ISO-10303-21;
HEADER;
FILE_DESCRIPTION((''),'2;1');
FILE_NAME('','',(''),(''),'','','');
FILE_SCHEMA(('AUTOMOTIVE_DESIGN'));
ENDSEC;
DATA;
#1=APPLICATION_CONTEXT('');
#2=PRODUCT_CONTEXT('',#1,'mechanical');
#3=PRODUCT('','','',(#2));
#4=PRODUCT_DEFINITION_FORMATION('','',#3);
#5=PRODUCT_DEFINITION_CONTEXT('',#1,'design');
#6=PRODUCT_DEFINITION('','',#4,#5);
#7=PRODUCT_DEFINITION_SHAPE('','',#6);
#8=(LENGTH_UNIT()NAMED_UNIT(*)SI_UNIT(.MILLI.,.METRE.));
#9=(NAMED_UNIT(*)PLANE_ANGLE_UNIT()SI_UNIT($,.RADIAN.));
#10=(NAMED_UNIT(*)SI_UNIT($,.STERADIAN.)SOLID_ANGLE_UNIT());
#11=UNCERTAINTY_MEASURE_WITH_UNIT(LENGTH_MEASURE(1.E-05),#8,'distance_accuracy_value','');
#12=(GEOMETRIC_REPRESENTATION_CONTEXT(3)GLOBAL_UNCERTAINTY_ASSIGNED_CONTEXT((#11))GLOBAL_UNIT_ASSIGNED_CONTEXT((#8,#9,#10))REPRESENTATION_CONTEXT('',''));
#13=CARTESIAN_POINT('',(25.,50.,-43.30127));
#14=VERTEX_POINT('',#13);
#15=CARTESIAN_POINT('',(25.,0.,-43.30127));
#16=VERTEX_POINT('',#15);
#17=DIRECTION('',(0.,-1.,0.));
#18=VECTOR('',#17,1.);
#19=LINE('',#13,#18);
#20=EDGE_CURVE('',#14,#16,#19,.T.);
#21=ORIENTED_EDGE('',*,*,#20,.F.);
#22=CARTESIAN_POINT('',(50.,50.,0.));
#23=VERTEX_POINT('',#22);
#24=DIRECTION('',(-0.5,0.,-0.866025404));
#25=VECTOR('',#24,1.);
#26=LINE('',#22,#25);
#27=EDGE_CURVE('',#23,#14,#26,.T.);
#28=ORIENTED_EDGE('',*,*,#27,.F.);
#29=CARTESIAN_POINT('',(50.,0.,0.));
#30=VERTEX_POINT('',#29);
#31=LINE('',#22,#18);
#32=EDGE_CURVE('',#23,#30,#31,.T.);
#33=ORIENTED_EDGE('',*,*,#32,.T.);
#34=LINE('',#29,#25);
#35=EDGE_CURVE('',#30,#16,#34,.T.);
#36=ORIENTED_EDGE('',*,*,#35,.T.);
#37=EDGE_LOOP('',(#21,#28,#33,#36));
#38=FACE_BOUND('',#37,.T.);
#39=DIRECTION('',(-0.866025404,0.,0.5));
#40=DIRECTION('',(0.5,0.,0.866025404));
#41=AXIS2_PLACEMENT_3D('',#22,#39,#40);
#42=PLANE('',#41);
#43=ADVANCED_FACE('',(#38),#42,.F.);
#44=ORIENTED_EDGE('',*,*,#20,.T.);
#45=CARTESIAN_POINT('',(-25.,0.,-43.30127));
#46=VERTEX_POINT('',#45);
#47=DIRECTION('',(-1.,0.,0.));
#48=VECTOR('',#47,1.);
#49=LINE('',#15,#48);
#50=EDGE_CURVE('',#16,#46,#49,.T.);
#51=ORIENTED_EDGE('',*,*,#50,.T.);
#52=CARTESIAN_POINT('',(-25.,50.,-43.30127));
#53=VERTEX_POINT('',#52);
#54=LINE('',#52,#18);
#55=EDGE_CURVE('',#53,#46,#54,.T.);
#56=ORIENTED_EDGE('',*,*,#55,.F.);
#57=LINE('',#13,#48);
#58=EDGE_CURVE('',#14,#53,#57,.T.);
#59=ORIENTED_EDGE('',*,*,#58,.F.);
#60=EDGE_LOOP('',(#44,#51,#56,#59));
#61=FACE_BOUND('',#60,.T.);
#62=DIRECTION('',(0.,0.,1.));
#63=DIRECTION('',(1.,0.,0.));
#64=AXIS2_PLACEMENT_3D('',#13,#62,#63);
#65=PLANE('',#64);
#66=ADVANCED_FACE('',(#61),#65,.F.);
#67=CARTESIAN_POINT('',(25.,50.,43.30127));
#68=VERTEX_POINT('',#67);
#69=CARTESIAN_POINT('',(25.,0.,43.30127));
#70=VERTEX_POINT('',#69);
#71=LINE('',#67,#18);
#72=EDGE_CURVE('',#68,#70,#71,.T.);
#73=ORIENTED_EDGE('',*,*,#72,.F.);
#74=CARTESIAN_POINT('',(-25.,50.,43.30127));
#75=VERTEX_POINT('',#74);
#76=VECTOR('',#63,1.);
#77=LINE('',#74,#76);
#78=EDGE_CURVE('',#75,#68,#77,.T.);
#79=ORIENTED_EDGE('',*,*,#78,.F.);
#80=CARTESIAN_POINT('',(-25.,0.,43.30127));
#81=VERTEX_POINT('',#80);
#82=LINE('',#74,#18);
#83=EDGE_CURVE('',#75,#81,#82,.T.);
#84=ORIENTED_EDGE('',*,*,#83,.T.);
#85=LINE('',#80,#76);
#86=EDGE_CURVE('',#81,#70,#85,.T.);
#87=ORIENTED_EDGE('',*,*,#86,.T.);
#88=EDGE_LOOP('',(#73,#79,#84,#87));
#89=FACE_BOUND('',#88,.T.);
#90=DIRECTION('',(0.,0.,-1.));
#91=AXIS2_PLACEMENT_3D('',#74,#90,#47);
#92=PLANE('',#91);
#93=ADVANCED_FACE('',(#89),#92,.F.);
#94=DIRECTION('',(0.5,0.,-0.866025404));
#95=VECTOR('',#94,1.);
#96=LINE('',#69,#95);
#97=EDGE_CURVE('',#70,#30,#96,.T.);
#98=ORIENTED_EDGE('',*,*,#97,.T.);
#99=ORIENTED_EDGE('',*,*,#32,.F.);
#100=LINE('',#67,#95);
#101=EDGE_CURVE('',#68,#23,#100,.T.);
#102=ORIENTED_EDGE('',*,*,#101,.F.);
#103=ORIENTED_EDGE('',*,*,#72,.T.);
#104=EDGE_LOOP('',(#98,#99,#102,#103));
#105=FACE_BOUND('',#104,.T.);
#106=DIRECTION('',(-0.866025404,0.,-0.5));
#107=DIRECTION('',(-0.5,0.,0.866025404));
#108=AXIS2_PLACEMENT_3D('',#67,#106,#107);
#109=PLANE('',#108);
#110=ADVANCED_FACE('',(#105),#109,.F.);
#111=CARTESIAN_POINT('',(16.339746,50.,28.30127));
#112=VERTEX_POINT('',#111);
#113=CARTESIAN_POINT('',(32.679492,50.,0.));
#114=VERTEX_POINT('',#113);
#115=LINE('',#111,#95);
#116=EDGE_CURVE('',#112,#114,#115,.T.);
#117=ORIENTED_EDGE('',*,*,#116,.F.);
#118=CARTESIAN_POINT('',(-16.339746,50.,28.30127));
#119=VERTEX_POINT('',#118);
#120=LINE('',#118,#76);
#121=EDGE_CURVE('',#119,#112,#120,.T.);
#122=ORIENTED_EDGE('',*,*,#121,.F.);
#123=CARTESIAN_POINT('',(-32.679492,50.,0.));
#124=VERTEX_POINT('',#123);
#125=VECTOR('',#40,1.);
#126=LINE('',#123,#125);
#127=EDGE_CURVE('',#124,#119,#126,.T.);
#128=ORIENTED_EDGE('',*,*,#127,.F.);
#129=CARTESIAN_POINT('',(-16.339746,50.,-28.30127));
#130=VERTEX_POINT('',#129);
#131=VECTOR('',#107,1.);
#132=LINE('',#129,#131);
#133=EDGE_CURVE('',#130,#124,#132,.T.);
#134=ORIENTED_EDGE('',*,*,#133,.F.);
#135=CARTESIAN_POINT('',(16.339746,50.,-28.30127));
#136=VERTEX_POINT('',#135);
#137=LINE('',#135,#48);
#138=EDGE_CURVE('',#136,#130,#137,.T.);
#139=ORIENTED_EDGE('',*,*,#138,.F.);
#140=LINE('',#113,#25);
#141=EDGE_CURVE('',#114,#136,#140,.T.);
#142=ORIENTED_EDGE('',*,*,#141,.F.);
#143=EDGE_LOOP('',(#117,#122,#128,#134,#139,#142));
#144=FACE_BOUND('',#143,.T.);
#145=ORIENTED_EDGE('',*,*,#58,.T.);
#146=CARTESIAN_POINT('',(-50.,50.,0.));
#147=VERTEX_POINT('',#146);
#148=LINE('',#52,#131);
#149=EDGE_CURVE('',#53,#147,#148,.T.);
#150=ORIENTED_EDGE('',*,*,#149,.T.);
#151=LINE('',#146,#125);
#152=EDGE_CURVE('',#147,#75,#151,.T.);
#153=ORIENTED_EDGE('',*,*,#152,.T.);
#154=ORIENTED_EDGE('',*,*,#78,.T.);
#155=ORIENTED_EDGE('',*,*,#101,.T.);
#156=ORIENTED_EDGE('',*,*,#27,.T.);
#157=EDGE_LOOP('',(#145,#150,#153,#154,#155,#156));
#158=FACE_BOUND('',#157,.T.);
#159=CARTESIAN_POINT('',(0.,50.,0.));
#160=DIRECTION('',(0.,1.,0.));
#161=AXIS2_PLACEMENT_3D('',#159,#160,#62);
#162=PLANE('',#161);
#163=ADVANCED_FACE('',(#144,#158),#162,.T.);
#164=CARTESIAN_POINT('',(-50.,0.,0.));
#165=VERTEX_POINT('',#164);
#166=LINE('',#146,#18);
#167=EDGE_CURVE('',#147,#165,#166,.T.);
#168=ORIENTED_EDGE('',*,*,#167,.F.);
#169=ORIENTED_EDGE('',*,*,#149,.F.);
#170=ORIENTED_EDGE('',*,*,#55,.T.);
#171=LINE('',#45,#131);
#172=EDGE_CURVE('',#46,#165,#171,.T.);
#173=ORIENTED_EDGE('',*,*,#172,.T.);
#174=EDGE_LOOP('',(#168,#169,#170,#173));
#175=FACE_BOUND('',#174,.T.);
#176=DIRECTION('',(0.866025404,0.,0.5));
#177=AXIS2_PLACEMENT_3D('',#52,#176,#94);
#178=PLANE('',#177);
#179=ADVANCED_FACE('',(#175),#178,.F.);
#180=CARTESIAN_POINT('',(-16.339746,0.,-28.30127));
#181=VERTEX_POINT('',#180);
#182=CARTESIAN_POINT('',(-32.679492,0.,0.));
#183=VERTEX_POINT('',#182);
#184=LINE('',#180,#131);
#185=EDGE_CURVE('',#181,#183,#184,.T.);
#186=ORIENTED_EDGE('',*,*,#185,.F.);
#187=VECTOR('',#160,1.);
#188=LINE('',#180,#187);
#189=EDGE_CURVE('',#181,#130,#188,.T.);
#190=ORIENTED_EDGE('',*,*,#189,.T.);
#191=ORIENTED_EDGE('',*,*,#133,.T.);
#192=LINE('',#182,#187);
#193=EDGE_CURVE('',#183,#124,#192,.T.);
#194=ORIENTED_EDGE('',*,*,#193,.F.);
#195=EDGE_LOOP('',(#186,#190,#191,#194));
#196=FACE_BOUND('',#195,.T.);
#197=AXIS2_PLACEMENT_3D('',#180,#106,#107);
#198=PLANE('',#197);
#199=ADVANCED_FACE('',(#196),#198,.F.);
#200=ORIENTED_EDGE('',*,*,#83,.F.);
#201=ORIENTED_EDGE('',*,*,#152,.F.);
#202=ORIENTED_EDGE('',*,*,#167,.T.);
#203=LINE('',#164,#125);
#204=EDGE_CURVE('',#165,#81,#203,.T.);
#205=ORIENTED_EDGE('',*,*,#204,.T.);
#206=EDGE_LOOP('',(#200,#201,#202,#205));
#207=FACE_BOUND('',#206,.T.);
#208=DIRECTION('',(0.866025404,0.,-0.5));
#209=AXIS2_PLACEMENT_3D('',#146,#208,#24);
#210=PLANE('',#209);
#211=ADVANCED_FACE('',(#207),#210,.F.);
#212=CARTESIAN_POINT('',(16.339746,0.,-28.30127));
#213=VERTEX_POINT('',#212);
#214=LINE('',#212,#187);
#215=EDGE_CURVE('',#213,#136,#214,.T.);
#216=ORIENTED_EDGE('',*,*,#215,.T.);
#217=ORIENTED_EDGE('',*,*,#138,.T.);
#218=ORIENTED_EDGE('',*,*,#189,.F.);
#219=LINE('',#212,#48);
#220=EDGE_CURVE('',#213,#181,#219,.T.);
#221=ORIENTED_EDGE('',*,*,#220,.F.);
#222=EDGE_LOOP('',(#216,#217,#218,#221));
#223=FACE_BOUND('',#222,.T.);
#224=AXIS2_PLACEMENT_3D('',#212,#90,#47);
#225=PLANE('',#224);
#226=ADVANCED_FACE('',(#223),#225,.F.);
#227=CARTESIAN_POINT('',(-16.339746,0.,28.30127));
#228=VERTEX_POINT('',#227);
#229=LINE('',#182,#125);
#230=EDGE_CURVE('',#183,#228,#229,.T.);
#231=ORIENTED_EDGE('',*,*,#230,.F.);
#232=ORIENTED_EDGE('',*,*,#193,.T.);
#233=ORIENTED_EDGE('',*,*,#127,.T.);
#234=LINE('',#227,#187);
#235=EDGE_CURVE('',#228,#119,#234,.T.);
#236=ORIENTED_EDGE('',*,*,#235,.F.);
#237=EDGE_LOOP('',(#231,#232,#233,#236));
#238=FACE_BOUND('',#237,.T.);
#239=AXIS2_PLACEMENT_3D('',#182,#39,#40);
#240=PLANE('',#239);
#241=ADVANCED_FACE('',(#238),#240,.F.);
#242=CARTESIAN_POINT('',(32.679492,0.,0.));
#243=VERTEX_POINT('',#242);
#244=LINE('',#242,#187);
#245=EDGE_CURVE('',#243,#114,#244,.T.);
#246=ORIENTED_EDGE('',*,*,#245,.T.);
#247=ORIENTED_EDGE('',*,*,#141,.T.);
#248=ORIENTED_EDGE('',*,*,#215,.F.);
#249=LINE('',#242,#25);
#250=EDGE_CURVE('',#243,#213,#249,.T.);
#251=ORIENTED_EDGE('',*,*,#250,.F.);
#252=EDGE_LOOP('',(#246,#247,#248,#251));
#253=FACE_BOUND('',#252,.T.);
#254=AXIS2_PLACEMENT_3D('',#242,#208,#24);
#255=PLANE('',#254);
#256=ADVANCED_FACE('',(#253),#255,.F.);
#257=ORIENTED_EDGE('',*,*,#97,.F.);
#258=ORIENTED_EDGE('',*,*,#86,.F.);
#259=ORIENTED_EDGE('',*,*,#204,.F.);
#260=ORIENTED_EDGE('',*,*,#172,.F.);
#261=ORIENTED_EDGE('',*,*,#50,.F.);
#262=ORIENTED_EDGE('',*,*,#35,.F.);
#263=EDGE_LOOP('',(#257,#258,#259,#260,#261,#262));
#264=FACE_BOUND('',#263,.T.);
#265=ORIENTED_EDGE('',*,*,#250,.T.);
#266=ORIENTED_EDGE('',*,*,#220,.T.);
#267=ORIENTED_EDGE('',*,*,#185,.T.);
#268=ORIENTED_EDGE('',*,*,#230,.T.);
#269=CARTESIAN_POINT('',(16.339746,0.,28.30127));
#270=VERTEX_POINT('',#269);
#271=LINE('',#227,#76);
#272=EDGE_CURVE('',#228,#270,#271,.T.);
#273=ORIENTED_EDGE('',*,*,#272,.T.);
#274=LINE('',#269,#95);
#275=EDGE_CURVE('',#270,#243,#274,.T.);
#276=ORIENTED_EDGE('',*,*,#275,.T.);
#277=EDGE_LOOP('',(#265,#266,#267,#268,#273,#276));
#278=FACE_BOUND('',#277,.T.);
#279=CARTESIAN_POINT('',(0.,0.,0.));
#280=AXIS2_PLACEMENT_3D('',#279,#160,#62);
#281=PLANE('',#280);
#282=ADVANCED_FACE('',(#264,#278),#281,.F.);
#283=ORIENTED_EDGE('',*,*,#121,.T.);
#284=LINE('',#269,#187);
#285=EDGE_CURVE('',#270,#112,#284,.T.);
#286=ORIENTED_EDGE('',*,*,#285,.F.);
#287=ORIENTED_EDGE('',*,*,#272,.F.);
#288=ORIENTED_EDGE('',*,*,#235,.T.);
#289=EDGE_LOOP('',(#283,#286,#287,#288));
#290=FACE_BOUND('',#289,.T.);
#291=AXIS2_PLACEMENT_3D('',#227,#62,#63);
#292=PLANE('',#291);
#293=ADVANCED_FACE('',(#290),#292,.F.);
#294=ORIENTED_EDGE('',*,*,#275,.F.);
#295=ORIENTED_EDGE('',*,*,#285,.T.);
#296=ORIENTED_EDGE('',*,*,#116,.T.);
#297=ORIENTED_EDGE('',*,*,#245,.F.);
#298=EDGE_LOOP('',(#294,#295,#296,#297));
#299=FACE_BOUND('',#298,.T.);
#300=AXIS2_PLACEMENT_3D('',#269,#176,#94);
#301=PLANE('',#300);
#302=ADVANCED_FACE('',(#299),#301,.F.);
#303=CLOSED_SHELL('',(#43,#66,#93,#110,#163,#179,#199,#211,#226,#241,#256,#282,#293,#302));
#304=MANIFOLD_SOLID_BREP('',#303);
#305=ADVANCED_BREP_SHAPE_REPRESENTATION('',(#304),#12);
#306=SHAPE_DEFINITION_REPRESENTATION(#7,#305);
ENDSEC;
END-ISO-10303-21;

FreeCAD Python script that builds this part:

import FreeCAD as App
import Part
import Sketcher

V = App.Vector
Q = App.Units.Quantity


def add_polygon(sketch, points):
    """Adds a closed chain of lines whose ends are joined by coincident constraints."""
    first, n = sketch.GeometryCount, len(points)
    for a, b in zip(points, points[1:] + points[:1]):
        sketch.addGeometry(Part.LineSegment(App.Vector(*a, 0), App.Vector(*b, 0)), False)
    for i in range(n):
        sketch.addConstraint(Sketcher.Constraint("Coincident", first + i, 2, first + (i + 1) % n, 1))

doc = App.newDocument("Part")
body = doc.addObject("PartDesign::Body", "Body")

# Sketch on XZ plane
sketch1 = body.newObject("Sketcher::SketchObject", "Sketch")
sketch1.AttachmentSupport = (doc.getObject("XZ_Plane"), [""])
sketch1.MapMode = "FlatFace"
add_polygon(sketch1, [(-25, 43), (25, 43), (50, 0), (25, -43), (-25, -43), (-50, 0)])  # lines 0-5
sketch1.addConstraint(Sketcher.Constraint("Horizontal", 0))
sketch1.addConstraint(Sketcher.Constraint("Horizontal", 3))
sketch1.addConstraint(Sketcher.Constraint("Symmetric", 0, 2, 3, 2, -1, 1))
sketch1.addConstraint(Sketcher.Constraint("Symmetric", 1, 2, 4, 2, -1, 1))
sketch1.addConstraint(Sketcher.Constraint("PointOnObject", 1, 2, -1))
sketch1.addConstraint(Sketcher.Constraint("Parallel", 2, 5))
sketch1.addConstraint(Sketcher.Constraint("Vertical", 0, 2, 2, 2))
sketch1.addConstraint(Sketcher.Constraint("DistanceX", 0, 1, 0, 2, Q("50 mm")))
sketch1.addConstraint(Sketcher.Constraint("Angle", 1, Q("-60 deg")))
sketch1.addConstraint(Sketcher.Constraint("Distance", 1, Q("50 mm")))
pad1 = body.newObject("PartDesign::Pad", "Pad")
pad1.Profile = sketch1
pad1.Length = 50
pad1.Reversed = True

# Sketch on XZ plane
sketch2 = body.newObject("Sketcher::SketchObject", "Sketch001")
sketch2.AttachmentSupport = (doc.getObject("XZ_Plane"), [""])
sketch2.MapMode = "FlatFace"
sketch2.AttachmentOffset = App.Placement(V(0, 0, -50), App.Rotation())
add_polygon(sketch2, [(-33, 0), (-16, 28), (16, 28), (33, 0), (16, -28), (-16, -28)])  # lines 0-5
sketch2.addConstraint(Sketcher.Constraint("Horizontal", 1))
sketch2.addConstraint(Sketcher.Constraint("Horizontal", 4))
sketch2.addConstraint(Sketcher.Constraint("Symmetric", 0, 2, 3, 2, -1, 1))
sketch2.addConstraint(Sketcher.Constraint("Symmetric", 2, 2, 5, 2, -1, 1))
sketch2.addConstraint(Sketcher.Constraint("PointOnObject", 2, 2, -1))
sketch2.addConstraint(Sketcher.Constraint("Parallel", 2, 5))
sketch2.addConstraint(Sketcher.Constraint("Vertical", 1, 2, 3, 2))
sketch2.addConstraint(Sketcher.Constraint("Angle", 0, Q("60 deg")))
sketch2.addConstraint(Sketcher.Constraint("DistanceX", 1, 1, 1, 2, Q("32.679492 mm")))
sketch2.addConstraint(Sketcher.Constraint("Distance", 0, Q("32.679492 mm")))
pocket1 = body.newObject("PartDesign::Pocket", "Pocket")
pocket1.Profile = sketch2
pocket1.Type = "ThroughAll"
pocket1.Reversed = True

doc.recompute()
